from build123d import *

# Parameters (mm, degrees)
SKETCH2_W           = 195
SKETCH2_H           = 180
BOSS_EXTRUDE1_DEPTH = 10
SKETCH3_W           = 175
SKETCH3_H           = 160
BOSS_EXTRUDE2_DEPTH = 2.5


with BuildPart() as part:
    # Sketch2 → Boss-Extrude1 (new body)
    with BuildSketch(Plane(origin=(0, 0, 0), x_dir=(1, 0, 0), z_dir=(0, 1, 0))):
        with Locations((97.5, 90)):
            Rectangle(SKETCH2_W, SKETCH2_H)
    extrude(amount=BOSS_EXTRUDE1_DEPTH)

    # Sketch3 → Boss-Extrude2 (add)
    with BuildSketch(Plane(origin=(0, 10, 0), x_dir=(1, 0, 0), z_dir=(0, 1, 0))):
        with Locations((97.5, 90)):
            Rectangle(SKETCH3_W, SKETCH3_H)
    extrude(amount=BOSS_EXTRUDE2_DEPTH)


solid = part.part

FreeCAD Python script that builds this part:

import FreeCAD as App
import Part
import Sketcher

V = App.Vector


def add_polygon(sketch, points):
    """Adds a closed chain of lines whose ends are joined by coincident constraints."""
    first, n = sketch.GeometryCount, len(points)
    for a, b in zip(points, points[1:] + points[:1]):
        sketch.addGeometry(Part.LineSegment(App.Vector(*a, 0), App.Vector(*b, 0)), False)
    for i in range(n):
        sketch.addConstraint(Sketcher.Constraint("Coincident", first + i, 2, first + (i + 1) % n, 1))

doc = App.newDocument("Part")
body = doc.addObject("PartDesign::Body", "Body")

# Sketch on XZ plane
sketch1 = body.newObject("Sketcher::SketchObject", "Sketch")
sketch1.AttachmentSupport = (doc.getObject("XZ_Plane"), [""])
sketch1.MapMode = "FlatFace"
add_polygon(sketch1, [(0, -180), (0, 0), (195, 0), (195, -180)])  # lines 0-3
sketch1.addConstraint(Sketcher.Constraint("Vertical", 0))
sketch1.addConstraint(Sketcher.Constraint("Horizontal", 1))
sketch1.addConstraint(Sketcher.Constraint("Vertical", 2))
sketch1.addConstraint(Sketcher.Constraint("Horizontal", 3))
sketch1.addConstraint(Sketcher.Constraint("Coincident", 0, 2, -1, 1))
sketch1.addConstraint(Sketcher.Constraint("DistanceX", 1, 1, 1, 2, 195.0))
sketch1.addConstraint(Sketcher.Constraint("DistanceY", 0, 1, 0, 2, 180.0))
pad1 = body.newObject("PartDesign::Pad", "Pad")
pad1.Profile = sketch1
pad1.Length = 10
pad1.Reversed = True

# Sketch on XZ plane
sketch2 = body.newObject("Sketcher::SketchObject", "Sketch001")
sketch2.AttachmentSupport = (doc.getObject("XZ_Plane"), [""])
sketch2.MapMode = "FlatFace"
sketch2.AttachmentOffset = App.Placement(V(0, 0, -10), App.Rotation())
add_polygon(sketch2, [(10, -170), (10, -10), (185, -10), (185, -170)])  # lines 0-3
sketch2.addConstraint(Sketcher.Constraint("Vertical", 0))
sketch2.addConstraint(Sketcher.Constraint("Horizontal", 1))
sketch2.addConstraint(Sketcher.Constraint("Vertical", 2))
sketch2.addConstraint(Sketcher.Constraint("Horizontal", 3))
sketch2.addConstraint(Sketcher.Constraint("DistanceX", 1, 1, 1, 2, 175.0))
sketch2.addConstraint(Sketcher.Constraint("DistanceY", 0, 1, 0, 2, 160.0))
sketch2.addConstraint(Sketcher.Constraint("DistanceX", -1, 1, 0, 2, 10.0))
sketch2.addConstraint(Sketcher.Constraint("DistanceY", 0, 2, -1, 1, 10.0))
pad2 = body.newObject("PartDesign::Pad", "Pad001")
pad2.Profile = sketch2
pad2.Length = 2.5
pad2.Reversed = True

doc.recompute()
